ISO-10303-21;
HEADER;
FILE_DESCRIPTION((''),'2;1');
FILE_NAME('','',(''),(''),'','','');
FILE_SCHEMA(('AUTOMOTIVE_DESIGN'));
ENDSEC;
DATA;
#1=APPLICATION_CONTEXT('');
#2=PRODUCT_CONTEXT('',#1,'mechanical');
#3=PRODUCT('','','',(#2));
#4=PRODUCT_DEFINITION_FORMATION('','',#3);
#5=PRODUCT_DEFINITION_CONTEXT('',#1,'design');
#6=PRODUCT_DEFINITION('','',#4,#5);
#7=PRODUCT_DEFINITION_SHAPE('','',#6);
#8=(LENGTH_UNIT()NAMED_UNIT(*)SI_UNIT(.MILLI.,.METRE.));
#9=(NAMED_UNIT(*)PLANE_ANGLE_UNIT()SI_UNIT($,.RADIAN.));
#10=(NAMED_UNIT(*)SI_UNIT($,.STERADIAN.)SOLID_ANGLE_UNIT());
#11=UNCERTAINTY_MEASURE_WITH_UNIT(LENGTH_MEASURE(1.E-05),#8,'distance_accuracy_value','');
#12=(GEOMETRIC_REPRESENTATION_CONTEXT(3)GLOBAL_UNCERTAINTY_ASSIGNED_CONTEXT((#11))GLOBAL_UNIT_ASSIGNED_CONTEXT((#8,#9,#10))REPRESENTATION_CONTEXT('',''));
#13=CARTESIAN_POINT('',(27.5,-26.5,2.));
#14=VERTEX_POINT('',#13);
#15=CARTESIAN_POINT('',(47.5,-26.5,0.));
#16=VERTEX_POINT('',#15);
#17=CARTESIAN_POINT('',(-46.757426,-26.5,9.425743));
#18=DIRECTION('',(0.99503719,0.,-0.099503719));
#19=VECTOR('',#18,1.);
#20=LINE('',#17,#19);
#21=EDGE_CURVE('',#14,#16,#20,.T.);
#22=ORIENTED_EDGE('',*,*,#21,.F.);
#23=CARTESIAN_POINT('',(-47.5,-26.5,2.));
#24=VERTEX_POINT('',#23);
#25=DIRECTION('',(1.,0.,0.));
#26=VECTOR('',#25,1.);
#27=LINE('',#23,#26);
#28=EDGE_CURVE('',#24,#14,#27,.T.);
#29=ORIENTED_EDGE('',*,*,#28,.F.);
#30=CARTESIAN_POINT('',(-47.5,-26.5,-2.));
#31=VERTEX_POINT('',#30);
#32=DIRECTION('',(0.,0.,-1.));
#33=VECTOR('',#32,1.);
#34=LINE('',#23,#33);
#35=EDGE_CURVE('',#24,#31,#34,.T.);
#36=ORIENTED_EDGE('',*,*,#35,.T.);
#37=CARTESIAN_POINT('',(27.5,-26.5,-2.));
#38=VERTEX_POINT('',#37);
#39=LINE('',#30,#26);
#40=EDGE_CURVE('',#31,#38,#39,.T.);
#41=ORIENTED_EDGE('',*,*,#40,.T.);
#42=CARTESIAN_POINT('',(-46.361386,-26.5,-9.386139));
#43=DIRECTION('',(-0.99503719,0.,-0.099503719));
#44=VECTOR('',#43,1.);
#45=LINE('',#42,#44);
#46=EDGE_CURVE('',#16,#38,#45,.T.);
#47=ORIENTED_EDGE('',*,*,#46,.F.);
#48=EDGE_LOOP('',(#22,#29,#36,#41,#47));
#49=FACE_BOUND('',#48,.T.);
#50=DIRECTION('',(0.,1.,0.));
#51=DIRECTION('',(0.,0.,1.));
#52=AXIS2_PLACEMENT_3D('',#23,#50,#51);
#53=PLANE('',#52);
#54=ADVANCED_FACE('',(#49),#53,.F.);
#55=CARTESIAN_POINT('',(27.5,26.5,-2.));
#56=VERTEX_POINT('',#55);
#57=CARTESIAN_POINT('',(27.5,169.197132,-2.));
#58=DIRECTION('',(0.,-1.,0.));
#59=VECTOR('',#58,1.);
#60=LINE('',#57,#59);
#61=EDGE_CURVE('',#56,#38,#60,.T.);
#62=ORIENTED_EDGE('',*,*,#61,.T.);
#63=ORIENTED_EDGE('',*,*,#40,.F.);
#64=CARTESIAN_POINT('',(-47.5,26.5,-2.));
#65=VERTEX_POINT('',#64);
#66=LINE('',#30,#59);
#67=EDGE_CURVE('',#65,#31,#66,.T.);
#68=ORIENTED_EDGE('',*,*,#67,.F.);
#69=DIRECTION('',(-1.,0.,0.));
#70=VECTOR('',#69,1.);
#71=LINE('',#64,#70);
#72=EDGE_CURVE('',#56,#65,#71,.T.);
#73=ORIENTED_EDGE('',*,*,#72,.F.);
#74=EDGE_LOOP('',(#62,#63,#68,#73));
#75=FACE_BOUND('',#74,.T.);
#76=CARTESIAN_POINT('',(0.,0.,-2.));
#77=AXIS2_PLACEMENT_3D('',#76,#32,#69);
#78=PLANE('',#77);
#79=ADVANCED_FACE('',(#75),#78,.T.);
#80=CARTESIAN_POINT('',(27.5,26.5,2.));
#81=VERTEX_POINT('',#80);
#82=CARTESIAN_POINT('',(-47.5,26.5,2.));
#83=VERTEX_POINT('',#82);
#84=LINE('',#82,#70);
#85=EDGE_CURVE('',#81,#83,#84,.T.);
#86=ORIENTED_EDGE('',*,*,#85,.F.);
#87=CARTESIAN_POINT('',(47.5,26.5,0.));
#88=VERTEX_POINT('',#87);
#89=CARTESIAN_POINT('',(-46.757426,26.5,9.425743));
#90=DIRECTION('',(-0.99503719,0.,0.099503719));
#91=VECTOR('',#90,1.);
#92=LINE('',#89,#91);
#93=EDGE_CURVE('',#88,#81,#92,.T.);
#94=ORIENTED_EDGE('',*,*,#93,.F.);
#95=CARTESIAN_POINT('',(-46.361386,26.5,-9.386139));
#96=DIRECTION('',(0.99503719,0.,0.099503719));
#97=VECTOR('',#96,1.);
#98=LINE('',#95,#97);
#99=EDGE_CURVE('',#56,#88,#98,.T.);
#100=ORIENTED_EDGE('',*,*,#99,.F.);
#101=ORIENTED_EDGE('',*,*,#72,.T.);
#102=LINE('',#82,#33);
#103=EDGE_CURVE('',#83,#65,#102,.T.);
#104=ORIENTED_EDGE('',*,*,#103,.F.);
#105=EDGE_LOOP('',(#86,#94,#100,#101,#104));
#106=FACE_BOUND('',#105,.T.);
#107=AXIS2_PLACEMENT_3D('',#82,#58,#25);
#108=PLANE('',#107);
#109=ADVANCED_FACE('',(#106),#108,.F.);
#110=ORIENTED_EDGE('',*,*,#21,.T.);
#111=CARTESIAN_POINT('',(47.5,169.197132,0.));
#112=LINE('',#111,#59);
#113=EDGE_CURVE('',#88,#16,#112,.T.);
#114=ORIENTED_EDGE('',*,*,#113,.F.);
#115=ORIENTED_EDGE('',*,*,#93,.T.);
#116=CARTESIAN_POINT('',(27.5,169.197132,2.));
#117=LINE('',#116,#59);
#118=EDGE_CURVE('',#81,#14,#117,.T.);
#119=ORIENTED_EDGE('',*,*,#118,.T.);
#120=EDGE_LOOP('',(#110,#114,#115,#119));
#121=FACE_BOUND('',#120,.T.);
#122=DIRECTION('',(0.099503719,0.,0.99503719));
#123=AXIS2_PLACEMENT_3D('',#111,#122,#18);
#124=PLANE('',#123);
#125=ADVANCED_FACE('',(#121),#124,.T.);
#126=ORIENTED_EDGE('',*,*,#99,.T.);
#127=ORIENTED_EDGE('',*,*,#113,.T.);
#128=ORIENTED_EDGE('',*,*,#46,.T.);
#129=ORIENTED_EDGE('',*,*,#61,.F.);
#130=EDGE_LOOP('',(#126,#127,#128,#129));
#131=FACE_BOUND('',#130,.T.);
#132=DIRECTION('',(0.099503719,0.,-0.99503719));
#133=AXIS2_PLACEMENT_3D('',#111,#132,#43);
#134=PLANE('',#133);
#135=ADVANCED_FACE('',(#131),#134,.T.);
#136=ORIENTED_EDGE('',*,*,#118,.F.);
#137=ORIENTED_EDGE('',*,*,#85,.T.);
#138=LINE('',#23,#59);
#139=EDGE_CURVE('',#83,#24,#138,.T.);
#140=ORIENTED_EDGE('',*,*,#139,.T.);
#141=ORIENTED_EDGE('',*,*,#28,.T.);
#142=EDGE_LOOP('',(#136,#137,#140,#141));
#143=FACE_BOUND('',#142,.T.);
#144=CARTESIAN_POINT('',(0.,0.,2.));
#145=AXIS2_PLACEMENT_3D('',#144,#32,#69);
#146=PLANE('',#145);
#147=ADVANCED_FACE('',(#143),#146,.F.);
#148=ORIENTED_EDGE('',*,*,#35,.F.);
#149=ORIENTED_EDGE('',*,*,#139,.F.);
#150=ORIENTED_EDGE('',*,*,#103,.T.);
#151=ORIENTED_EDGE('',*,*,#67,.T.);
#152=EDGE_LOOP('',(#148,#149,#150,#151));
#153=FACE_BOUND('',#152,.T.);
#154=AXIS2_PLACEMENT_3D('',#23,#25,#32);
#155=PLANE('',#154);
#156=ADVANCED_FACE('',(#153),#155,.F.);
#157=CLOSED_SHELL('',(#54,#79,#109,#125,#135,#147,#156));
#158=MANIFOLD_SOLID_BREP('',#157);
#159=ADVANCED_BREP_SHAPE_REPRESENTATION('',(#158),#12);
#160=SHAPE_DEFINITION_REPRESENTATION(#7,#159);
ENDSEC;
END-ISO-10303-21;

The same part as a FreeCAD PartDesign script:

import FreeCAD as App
import Part
import Sketcher
Q = App.Units.Quantity

doc = App.newDocument("Part")
body = doc.addObject("PartDesign::Body", "Body")

# Sketch on XY plane
sketch1 = body.newObject("Sketcher::SketchObject", "Sketch")
sketch1.AttachmentSupport = (doc.getObject("XY_Plane"), [""])
sketch1.MapMode = "FlatFace"
sketch1.addGeometry([
    Part.LineSegment(App.Vector(-48, 26, 0), App.Vector(-48, -26, 0)),
    Part.LineSegment(App.Vector(-48, -26, 0), App.Vector(48, -26, 0)),
    Part.LineSegment(App.Vector(48, -26, 0), App.Vector(48, 26, 0)),
    Part.LineSegment(App.Vector(48, 26, 0), App.Vector(-48, 26, 0)),
], False)
sketch1.addConstraint([
    Sketcher.Constraint("Coincident", 0, 2, 1, 1),
    Sketcher.Constraint("Coincident", 1, 2, 2, 1),
    Sketcher.Constraint("Coincident", 2, 2, 3, 1),
    Sketcher.Constraint("Coincident", 3, 2, 0, 1),
    Sketcher.Constraint("Vertical", 0),
    Sketcher.Constraint("Horizontal", 1),
    Sketcher.Constraint("Vertical", 2),
    Sketcher.Constraint("Horizontal", 3),
    Sketcher.Constraint("Symmetric", 0, 2, 2, 2, -1, 1),
    Sketcher.Constraint("DistanceX", 1, 1, 1, 2, Q("95 mm")),
    Sketcher.Constraint("DistanceY", 0, 2, 0, 1, Q("53 mm")),
])
pad1 = body.newObject("PartDesign::Pad", "Pad")
pad1.Profile = sketch1
pad1.Length = 4
pad1.Midplane = True

# Sketch on XZ plane
sketch2 = body.newObject("Sketcher::SketchObject", "Sketch001")
sketch2.AttachmentSupport = (doc.getObject("XZ_Plane"), [""])
sketch2.MapMode = "FlatFace"
sketch2.addGeometry([
    Part.LineSegment(App.Vector(28, 2, 0), App.Vector(-132, 18, 0)),  # 0
    Part.LineSegment(App.Vector(-132, 18, 0), App.Vector(189, 18, 0)),  # 1
    Part.LineSegment(App.Vector(189, 18, 0), App.Vector(189, -18, 0)),  # 2
    Part.LineSegment(App.Vector(189, -18, 0), App.Vector(-132, -18, 0)),  # 3
    Part.LineSegment(App.Vector(-132, -18, 0), App.Vector(28, -2, 0)),  # 4
    Part.LineSegment(App.Vector(28, -2, 0), App.Vector(48, 0, 0)),  # 5
    Part.LineSegment(App.Vector(48, 0, 0), App.Vector(28, 2, 0)),  # 6
], False)
sketch2.addConstraint([
    Sketcher.Constraint("Coincident", 0, 2, 1, 1),
    Sketcher.Constraint("Coincident", 1, 2, 2, 1),
    Sketcher.Constraint("Coincident", 2, 2, 3, 1),
    Sketcher.Constraint("Coincident", 3, 2, 4, 1),
    Sketcher.Constraint("Coincident", 4, 2, 5, 1),
    Sketcher.Constraint("Coincident", 5, 2, 6, 1),
    Sketcher.Constraint("Coincident", 6, 2, 0, 1),
    Sketcher.Constraint("Horizontal", 1),
    Sketcher.Constraint("Vertical", 2),
    Sketcher.Constraint("Horizontal", 3),
    Sketcher.Constraint("Symmetric", 0, 2, 3, 2, -1),
    Sketcher.Constraint("Symmetric", 4, 2, 6, 2, -1),
    Sketcher.Constraint("PointOnObject", 5, 2, -1),
    Sketcher.Constraint("Parallel", 4, 5),
    Sketcher.Constraint("DistanceY", 4, 2, -1, 1, Q("2 mm")),
    Sketcher.Constraint("DistanceX", 4, 2, 5, 2, Q("20 mm")),
    Sketcher.Constraint("DistanceX", -1, 1, 4, 2, Q("27.5 mm")),
    Sketcher.Constraint("Distance", 0, Q("160.213182 mm")),
    Sketcher.Constraint("DistanceX", 1, 1, 1, 2, Q("320.426364 mm")),
])
pocket1 = body.newObject("PartDesign::Pocket", "Pocket")
pocket1.Profile = sketch2
pocket1.Type = "ThroughAll"
pocket1.Midplane = True

doc.recompute()
